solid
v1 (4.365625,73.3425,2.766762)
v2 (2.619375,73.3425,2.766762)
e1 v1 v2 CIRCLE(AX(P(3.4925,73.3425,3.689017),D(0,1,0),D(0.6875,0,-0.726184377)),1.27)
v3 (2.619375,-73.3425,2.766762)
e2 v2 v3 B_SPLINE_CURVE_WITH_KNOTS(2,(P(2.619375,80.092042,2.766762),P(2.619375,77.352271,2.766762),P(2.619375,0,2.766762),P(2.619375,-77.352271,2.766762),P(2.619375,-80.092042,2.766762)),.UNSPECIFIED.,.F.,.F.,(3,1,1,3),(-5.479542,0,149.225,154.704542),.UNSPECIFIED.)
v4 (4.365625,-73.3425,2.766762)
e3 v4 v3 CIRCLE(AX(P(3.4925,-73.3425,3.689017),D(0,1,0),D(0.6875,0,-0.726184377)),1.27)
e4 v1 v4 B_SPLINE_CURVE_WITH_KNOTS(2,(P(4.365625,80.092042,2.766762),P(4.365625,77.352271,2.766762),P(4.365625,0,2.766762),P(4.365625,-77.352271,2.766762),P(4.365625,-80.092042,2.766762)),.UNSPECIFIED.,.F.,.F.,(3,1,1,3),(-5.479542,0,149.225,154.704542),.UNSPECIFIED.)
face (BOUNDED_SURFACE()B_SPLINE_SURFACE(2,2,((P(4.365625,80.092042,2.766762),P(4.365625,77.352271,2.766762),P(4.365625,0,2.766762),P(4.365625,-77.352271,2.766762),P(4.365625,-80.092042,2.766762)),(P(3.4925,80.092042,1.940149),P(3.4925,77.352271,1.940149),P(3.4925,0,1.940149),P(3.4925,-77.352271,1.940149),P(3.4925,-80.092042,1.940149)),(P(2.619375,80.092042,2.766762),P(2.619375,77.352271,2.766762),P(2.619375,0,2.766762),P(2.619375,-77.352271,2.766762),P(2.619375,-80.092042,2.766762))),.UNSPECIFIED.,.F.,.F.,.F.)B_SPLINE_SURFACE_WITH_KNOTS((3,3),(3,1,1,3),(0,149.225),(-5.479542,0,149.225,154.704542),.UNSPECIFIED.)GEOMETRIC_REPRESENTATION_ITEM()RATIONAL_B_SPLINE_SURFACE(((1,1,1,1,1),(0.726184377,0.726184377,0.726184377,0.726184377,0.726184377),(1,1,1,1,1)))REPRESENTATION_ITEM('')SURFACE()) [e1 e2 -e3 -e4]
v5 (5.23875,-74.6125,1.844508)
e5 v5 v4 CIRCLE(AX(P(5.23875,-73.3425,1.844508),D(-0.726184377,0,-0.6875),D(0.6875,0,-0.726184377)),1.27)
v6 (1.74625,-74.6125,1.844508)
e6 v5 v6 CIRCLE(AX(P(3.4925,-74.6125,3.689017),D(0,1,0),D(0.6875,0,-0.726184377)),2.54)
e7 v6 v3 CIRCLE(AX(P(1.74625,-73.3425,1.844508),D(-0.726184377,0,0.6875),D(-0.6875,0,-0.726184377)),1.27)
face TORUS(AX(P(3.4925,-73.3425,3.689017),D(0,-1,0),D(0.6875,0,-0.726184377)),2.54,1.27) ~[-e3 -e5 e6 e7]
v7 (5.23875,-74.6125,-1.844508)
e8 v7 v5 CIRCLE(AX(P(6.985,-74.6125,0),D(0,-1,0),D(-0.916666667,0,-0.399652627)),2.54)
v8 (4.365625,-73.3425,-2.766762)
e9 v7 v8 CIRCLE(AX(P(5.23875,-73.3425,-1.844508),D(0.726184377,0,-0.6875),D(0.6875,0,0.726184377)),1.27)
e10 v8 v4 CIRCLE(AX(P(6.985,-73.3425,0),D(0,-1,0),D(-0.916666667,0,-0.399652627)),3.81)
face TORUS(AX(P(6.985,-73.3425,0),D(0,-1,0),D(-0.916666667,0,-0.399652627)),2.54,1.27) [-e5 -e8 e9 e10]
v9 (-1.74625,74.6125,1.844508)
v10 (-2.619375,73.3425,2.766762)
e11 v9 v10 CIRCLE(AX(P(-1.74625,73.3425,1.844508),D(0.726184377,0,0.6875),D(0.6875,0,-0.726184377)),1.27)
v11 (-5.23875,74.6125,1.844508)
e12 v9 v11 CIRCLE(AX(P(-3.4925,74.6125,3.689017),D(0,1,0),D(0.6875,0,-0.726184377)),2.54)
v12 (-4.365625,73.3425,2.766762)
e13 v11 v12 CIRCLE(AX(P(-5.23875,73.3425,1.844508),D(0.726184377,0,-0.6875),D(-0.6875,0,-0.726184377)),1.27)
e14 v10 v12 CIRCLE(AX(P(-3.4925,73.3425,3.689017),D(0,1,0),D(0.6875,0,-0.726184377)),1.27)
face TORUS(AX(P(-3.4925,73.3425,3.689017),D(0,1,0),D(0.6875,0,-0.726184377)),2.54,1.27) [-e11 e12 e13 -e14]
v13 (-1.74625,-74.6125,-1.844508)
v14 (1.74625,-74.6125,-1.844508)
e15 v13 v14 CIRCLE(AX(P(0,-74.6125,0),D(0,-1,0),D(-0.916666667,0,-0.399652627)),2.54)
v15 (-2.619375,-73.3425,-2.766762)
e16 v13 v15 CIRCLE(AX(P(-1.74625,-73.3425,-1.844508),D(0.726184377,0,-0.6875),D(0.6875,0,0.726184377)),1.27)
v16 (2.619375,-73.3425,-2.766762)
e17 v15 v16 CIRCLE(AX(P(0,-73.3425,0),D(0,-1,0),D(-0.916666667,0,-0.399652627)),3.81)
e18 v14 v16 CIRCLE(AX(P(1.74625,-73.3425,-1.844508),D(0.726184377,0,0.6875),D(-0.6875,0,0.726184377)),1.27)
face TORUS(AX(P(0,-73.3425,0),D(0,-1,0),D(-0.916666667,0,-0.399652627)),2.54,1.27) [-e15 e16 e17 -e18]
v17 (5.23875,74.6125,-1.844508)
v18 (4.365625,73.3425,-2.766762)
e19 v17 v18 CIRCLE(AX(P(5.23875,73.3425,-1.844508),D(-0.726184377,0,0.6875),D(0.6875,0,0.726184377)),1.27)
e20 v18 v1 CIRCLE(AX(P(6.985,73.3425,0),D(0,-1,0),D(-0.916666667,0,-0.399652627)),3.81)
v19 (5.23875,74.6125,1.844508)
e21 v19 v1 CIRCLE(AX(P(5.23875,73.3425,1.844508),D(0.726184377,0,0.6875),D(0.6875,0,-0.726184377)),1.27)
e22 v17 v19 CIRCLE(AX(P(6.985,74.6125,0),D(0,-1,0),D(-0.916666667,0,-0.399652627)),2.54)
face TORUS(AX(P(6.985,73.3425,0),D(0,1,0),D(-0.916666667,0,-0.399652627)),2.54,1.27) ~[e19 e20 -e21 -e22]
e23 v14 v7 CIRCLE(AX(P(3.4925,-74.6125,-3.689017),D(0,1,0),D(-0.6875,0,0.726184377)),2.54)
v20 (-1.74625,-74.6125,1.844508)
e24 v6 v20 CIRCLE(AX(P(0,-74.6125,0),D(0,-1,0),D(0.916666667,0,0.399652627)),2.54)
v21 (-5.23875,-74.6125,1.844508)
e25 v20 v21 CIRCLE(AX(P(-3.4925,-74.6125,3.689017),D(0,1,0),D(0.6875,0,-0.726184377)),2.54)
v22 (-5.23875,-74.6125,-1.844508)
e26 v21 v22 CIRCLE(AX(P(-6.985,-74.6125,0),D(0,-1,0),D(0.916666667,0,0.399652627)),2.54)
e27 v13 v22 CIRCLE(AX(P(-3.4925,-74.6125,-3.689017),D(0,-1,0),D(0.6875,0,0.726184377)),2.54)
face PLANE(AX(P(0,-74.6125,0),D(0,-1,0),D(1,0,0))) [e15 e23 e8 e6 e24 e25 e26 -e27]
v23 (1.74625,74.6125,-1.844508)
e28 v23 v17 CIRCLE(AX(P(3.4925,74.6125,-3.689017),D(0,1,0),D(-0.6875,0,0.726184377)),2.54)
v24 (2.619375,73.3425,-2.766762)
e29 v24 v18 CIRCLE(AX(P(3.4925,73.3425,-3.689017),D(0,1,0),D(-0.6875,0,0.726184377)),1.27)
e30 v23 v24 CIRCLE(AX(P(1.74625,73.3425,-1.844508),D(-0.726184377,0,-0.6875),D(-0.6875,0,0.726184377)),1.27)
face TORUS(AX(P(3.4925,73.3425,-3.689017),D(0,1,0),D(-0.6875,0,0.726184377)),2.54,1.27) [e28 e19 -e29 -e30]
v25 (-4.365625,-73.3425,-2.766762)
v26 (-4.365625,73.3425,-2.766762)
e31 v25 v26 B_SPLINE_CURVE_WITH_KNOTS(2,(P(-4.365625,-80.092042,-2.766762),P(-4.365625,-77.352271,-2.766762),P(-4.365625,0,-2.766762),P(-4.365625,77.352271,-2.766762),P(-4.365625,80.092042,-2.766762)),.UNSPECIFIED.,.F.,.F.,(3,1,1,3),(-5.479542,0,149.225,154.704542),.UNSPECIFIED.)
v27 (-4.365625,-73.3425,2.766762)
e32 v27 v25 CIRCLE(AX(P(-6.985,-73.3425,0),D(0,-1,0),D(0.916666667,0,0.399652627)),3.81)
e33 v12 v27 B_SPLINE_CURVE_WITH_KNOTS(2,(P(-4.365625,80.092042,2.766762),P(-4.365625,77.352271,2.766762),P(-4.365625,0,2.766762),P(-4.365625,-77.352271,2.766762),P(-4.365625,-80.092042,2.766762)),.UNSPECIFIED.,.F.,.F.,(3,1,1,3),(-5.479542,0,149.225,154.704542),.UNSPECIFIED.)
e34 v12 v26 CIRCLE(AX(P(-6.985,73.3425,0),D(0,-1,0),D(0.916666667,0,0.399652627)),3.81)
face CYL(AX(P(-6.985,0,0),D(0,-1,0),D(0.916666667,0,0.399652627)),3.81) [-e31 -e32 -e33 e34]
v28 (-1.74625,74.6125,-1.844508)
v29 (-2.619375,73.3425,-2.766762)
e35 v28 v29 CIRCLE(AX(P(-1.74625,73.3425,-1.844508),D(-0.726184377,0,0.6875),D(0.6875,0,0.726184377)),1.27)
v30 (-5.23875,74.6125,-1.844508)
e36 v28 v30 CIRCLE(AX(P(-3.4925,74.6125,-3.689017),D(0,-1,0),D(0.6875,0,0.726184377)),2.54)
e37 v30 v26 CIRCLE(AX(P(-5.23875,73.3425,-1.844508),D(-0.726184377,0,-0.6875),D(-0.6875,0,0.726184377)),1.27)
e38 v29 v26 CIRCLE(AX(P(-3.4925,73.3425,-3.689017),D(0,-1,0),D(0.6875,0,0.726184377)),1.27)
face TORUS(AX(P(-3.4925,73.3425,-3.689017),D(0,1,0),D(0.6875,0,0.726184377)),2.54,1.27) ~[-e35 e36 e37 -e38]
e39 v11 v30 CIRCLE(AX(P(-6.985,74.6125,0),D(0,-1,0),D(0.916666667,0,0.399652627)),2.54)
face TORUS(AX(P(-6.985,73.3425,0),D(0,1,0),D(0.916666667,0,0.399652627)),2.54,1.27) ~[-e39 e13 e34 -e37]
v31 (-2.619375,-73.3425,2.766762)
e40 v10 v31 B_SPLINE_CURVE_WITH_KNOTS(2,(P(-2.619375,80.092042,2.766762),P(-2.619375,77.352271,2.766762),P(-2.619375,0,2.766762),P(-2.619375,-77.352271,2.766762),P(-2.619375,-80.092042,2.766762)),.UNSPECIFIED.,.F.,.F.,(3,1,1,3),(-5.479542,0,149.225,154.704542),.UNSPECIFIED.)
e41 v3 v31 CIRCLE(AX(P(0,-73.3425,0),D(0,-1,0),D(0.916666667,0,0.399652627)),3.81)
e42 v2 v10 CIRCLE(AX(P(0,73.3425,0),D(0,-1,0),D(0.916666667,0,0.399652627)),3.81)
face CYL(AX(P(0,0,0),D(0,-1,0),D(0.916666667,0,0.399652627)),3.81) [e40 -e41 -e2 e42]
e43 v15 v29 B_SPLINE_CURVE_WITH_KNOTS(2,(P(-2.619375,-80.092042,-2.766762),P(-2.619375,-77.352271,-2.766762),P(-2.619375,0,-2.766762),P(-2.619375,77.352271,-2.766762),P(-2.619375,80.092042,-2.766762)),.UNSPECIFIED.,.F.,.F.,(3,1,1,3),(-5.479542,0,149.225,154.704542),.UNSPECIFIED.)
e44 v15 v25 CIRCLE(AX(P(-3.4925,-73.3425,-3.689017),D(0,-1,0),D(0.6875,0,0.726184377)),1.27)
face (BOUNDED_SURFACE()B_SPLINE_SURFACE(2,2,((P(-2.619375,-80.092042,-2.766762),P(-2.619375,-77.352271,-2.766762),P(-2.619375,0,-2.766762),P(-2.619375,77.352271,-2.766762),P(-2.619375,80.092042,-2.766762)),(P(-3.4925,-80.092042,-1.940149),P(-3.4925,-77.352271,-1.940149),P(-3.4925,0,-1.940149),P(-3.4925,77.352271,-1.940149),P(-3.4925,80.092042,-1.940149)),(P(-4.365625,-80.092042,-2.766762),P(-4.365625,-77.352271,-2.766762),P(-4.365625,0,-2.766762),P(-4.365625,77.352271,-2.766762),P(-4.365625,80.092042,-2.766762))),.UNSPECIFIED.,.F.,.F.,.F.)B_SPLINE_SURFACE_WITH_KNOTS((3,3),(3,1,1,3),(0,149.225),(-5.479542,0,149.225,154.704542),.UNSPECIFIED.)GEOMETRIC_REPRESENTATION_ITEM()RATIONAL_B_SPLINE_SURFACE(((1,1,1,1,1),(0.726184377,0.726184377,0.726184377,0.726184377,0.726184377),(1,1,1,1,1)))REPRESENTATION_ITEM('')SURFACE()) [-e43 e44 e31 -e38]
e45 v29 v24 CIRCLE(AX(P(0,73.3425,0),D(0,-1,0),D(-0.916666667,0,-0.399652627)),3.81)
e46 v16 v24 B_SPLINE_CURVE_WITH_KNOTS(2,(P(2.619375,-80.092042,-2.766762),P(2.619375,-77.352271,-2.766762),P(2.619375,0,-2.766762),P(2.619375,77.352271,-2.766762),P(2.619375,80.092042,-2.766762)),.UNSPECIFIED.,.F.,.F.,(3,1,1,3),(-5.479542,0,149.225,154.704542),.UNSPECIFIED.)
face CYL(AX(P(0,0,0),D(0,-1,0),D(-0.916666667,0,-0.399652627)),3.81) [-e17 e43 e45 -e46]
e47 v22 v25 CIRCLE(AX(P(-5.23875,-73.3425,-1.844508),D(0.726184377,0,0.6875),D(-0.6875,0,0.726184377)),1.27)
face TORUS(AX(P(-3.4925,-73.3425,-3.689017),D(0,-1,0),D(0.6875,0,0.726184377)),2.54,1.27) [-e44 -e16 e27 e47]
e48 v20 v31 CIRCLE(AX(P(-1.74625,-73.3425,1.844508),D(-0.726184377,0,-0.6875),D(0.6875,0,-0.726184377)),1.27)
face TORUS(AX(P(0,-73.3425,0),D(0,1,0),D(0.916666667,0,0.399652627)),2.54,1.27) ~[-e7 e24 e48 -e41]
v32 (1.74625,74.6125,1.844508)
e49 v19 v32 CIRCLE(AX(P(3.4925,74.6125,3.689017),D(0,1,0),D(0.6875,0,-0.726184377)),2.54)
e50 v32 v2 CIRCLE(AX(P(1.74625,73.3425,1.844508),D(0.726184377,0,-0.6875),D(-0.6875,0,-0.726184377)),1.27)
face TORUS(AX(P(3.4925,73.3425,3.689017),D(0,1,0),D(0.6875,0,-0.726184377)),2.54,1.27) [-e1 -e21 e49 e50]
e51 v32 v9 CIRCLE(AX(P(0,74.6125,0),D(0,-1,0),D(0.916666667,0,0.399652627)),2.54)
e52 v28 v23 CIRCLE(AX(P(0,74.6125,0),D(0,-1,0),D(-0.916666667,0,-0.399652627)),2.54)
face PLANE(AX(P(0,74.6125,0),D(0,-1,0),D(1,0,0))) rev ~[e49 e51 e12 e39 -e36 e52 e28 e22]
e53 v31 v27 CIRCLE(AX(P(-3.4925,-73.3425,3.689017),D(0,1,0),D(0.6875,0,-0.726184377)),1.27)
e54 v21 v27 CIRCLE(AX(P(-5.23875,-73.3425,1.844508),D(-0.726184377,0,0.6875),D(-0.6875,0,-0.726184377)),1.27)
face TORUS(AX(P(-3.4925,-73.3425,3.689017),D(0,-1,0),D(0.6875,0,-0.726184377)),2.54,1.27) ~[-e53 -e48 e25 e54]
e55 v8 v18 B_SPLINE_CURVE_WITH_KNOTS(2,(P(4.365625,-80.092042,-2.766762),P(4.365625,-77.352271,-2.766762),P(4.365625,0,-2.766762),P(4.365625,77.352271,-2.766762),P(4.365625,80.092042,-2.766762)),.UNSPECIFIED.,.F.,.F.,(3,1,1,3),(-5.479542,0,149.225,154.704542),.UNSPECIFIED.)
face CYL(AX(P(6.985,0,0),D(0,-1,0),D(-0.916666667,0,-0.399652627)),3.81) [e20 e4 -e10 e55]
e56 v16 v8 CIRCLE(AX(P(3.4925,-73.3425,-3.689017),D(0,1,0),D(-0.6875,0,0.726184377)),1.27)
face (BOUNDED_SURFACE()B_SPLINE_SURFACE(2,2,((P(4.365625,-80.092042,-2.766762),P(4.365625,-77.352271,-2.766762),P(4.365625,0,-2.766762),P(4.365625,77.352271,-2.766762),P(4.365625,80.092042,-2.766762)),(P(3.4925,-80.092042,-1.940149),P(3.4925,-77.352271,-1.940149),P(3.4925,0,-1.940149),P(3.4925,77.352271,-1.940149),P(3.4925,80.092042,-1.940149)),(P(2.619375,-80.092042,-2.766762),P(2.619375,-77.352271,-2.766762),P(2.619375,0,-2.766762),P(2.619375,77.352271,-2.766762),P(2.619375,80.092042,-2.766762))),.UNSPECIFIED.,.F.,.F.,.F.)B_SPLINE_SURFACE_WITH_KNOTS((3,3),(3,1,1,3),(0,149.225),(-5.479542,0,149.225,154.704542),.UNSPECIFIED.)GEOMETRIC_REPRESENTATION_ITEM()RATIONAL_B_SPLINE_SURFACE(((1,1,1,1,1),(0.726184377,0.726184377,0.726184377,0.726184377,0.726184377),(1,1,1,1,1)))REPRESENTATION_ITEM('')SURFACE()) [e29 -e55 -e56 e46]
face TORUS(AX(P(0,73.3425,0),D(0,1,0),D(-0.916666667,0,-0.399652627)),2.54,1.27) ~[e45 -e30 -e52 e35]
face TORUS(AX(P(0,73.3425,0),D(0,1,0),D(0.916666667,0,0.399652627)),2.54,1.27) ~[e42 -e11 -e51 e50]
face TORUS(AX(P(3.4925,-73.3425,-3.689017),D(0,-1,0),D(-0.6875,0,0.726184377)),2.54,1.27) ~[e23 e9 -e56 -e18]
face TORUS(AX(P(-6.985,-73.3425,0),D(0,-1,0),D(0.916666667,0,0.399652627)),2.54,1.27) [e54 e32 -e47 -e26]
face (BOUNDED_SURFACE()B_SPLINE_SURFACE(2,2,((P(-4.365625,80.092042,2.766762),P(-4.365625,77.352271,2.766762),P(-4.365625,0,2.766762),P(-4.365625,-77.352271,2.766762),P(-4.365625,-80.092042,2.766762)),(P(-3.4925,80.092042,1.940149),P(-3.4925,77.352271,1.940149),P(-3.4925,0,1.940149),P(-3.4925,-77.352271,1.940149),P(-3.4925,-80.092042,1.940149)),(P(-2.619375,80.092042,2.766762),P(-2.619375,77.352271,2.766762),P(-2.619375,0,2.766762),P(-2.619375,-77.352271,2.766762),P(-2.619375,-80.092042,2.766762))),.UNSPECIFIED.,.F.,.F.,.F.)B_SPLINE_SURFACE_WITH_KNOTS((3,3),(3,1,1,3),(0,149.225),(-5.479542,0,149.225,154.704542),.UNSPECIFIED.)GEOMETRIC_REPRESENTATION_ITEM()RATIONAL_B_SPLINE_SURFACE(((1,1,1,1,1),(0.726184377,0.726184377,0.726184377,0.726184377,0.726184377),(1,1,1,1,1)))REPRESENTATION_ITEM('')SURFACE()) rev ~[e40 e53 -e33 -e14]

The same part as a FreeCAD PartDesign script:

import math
import FreeCAD as App
import Part
import Sketcher
Q = App.Units.Quantity

doc = App.newDocument("Part")
params = doc.addObject("Spreadsheet::Sheet", "Params")
for row, (alias, value) in enumerate([
    ("sketch1_radius", "0.15 in"),
    ("pad1_length", "5.875 in"),
    ("fillet_radius", "0.05 in"),
], start=1):
    params.set(f"A{row}", alias)
    params.set(f"B{row}", "=" + value)
    params.setAlias(f"B{row}", alias)

body = doc.addObject("PartDesign::Body", "Body")

# Sketch on XZ plane
sketch1 = body.newObject("Sketcher::SketchObject", "Sketch")
sketch1.AttachmentSupport = (doc.getObject("XZ_Plane"), [""])
sketch1.MapMode = "FlatFace"
sketch1.addGeometry(Part.ArcOfCircle(Part.Circle(App.Vector(6.985, 0, 0), App.Vector(0, 0, 1), 3.81), math.radians(-156.443536), math.radians(156.443536)), False)
sketch1.addGeometry(Part.ArcOfCircle(Part.Circle(App.Vector(0, 0, 0), App.Vector(0, 0, 1), 3.81), math.radians(23.556464), math.radians(156.443536)), False)
sketch1.addGeometry(Part.ArcOfCircle(Part.Circle(App.Vector(-6.985, 0, 0), App.Vector(0, 0, 1), 3.81), math.radians(23.556464), math.radians(336.443536)), False)
sketch1.addGeometry(Part.ArcOfCircle(Part.Circle(App.Vector(0, 0, 0), App.Vector(0, 0, 1), 3.81), math.radians(-156.443536), math.radians(-23.556464)), False)
sketch1.addConstraint(Sketcher.Constraint("Coincident", 0, 2, 1, 1))
sketch1.addConstraint(Sketcher.Constraint("Coincident", 1, 2, 2, 1))
sketch1.addConstraint(Sketcher.Constraint("Coincident", 2, 2, 3, 1))
sketch1.addConstraint(Sketcher.Constraint("Coincident", 3, 2, 0, 1))
sketch1.addConstraint(Sketcher.Constraint("Coincident", 1, 3, -1, 1))
sketch1.addConstraint(Sketcher.Constraint("Coincident", 3, 3, -1, 1))
sketch1.addConstraint(Sketcher.Constraint("Equal", 0, 1))
sketch1.addConstraint(Sketcher.Constraint("Equal", 1, 2))
sketch1.addConstraint(Sketcher.Constraint("Equal", 2, 3))
sketch1.addConstraint(Sketcher.Constraint("Symmetric", 0, 3, 2, 3, -1, 1))
sketch1.addConstraint(Sketcher.Constraint("PointOnObject", 0, 3, -1))
sketch1.addConstraint(Sketcher.Constraint("Radius", 0, Q("0.15 in")))
sketch1.addConstraint(Sketcher.Constraint("DistanceX", 2, 3, 0, 3, Q("0.55 in")))
sketch1.setExpression("Constraints[11]", "Params.sketch1_radius")
pad1 = body.newObject("PartDesign::Pad", "Pad")
pad1.Profile = sketch1
pad1.setExpression("Length", "Params.pad1_length")
pad1.Midplane = True
doc.recompute()

fillet = body.newObject("PartDesign::Fillet", "Fillet")
fillet.Base = (pad1, ["Edge1"])
fillet.UseAllEdges = True
fillet.setExpression("Radius", "Params.fillet_radius")

doc.recompute()
